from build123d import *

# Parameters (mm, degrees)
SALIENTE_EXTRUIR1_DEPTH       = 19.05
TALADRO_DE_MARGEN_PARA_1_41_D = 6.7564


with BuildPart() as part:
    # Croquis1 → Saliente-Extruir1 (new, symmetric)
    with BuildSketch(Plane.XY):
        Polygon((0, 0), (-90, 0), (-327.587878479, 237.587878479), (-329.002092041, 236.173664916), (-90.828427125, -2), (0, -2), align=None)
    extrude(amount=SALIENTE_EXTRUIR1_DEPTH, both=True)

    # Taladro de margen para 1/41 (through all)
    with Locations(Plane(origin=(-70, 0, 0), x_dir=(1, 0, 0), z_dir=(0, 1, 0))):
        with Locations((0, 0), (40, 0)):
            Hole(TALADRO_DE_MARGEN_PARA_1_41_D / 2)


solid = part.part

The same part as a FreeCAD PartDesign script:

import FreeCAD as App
import Part
import Sketcher

V = App.Vector
Q = App.Units.Quantity


def add_polygon(sketch, points):
    """Adds a closed chain of lines whose ends are joined by coincident constraints."""
    first, n = sketch.GeometryCount, len(points)
    for a, b in zip(points, points[1:] + points[:1]):
        sketch.addGeometry(Part.LineSegment(App.Vector(*a, 0), App.Vector(*b, 0)), False)
    for i in range(n):
        sketch.addConstraint(Sketcher.Constraint("Coincident", first + i, 2, first + (i + 1) % n, 1))

doc = App.newDocument("Part")
body = doc.addObject("PartDesign::Body", "Body")

# Sketch on XY plane
sketch1 = body.newObject("Sketcher::SketchObject", "Sketch")
sketch1.AttachmentSupport = (doc.getObject("XY_Plane"), [""])
sketch1.MapMode = "FlatFace"
add_polygon(sketch1, [(0, 0), (-90, 0), (-327.6, 237.6), (-329, 236.2), (-90.8, -2), (0, -2)])  # lines 0-5
sketch1.addConstraint([
    Sketcher.Constraint("Horizontal", 0),
    Sketcher.Constraint("Horizontal", 4),
    Sketcher.Constraint("Vertical", 5),
    Sketcher.Constraint("Coincident", 5, 2, -1, 1),
    Sketcher.Constraint("Perpendicular", 1, 2),
    Sketcher.Constraint("Perpendicular", 2, 3),
    Sketcher.Constraint("DistanceX", 0, 2, 0, 1, Q("90 mm")),
    Sketcher.Constraint("DistanceY", 5, 1, 5, 2, Q("2 mm")),
    Sketcher.Constraint("Angle", 1, Q("135 deg")),
    Sketcher.Constraint("Distance", 1, Q("336 mm")),
    Sketcher.Constraint("Distance", 2, Q("2 mm")),
])
pad1 = body.newObject("PartDesign::Pad", "Pad")
pad1.Profile = sketch1
pad1.Length = 38.1
pad1.Midplane = True

# Sketch on XZ plane
sketch2 = body.newObject("Sketcher::SketchObject", "Sketch001")
sketch2.AttachmentSupport = (doc.getObject("XZ_Plane"), [""])
sketch2.MapMode = "FlatFace"
sketch2.addGeometry([
    Part.Circle(V(-70, 0, 0), V(0, 0, 1), 3.4),
    Part.Circle(V(-30, 0, 0), V(0, 0, 1), 3.4),
], False)
sketch2.addConstraint([
    Sketcher.Constraint("Equal", 0, 1),
    Sketcher.Constraint("PointOnObject", 0, 3, -1),
    Sketcher.Constraint("PointOnObject", 1, 3, -1),
    Sketcher.Constraint("DistanceX", 0, 3, -1, 1, Q("70 mm")),
    Sketcher.Constraint("DistanceX", 1, 3, -1, 1, Q("30 mm")),
    Sketcher.Constraint("Diameter", 0, Q("6.7564 mm")),
])
doc.recompute()
hole = body.newObject("PartDesign::Hole", "Hole")
hole.Profile = sketch2
hole.ThreadType = "None"
hole.Diameter = 6.7564
hole.DepthType = "ThroughAll"
hole.Reversed = True

doc.recompute()
